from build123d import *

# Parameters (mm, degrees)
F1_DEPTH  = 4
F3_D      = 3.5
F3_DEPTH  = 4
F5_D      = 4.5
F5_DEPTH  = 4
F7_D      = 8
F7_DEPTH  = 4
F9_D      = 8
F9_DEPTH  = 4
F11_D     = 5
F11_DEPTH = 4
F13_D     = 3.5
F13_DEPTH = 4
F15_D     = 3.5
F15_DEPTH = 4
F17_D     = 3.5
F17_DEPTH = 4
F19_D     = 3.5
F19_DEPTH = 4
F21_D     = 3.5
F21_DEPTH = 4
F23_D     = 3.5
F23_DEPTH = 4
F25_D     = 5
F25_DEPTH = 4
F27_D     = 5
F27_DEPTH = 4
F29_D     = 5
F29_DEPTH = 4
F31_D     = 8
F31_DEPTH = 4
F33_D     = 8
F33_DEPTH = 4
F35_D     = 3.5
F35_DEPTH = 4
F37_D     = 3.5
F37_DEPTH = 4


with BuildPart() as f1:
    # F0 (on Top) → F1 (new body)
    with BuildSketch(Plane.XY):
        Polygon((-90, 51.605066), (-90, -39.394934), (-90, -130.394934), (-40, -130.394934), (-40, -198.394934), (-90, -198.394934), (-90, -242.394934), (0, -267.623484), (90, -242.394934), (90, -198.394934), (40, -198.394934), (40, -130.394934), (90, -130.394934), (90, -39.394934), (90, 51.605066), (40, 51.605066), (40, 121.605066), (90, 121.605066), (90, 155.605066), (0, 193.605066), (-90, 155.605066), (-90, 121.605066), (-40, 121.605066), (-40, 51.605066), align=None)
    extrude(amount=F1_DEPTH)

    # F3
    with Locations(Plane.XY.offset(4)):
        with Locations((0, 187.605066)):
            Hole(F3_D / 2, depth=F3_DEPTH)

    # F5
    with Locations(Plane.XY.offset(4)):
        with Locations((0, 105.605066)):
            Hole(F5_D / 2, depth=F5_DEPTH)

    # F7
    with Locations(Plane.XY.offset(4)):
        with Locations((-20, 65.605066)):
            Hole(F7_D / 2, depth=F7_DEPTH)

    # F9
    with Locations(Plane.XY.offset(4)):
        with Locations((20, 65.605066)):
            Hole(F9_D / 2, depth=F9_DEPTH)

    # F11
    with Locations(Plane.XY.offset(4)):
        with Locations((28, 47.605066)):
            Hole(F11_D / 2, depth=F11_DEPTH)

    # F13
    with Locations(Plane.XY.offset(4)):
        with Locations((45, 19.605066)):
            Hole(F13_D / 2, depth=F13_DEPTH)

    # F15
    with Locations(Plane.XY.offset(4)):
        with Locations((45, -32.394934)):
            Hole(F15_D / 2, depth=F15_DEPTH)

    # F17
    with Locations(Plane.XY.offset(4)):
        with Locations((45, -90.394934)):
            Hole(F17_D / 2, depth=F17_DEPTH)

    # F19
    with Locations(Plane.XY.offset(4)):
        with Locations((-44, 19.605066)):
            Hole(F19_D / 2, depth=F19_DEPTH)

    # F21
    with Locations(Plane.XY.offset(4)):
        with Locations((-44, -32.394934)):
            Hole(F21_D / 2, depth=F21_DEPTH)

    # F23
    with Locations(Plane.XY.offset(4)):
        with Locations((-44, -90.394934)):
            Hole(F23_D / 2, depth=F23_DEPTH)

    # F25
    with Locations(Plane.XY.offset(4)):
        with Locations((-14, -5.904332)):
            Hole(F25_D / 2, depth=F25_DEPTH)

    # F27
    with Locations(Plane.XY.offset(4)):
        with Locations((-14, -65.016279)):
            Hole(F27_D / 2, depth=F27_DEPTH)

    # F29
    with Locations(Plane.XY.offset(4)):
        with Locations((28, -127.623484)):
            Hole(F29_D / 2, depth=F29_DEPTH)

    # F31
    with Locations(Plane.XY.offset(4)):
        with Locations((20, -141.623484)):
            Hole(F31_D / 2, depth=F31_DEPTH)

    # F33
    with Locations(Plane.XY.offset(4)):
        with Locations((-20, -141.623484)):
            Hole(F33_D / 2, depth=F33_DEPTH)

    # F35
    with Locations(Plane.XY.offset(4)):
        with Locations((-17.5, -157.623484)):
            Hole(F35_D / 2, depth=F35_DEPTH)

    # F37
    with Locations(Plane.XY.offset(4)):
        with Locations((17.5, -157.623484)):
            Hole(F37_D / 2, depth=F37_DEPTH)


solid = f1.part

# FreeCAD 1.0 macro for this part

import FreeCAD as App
import Part
import Sketcher


def add_polygon(sketch, points):
    """Adds a closed chain of lines whose ends are joined by coincident constraints."""
    first, n = sketch.GeometryCount, len(points)
    for a, b in zip(points, points[1:] + points[:1]):
        sketch.addGeometry(Part.LineSegment(App.Vector(*a, 0), App.Vector(*b, 0)), False)
    for i in range(n):
        sketch.addConstraint(Sketcher.Constraint("Coincident", first + i, 2, first + (i + 1) % n, 1))

doc = App.newDocument("Part")
body = doc.addObject("PartDesign::Body", "Body")

# Sketch on XY plane
sketch1 = body.newObject("Sketcher::SketchObject", "Sketch")
sketch1.AttachmentSupport = (doc.getObject("XY_Plane"), [""])
sketch1.MapMode = "FlatFace"
add_polygon(sketch1, [(-90, 52), (-90, -130), (-40, -130), (-40, -198), (-90, -198), (-90, -242), (0, -268), (90, -242), (90, -198), (40, -198), (40, -130), (90, -130), (90, 52), (40, 52), (40, 122), (90, 122), (90, 156), (0, 194), (-90, 156), (-90, 122), (-40, 122), (-40, 52)])  # lines 0-21
sketch1.addConstraint(Sketcher.Constraint("Vertical", 0))
sketch1.addConstraint(Sketcher.Constraint("Horizontal", 1))
sketch1.addConstraint(Sketcher.Constraint("Vertical", 2))
sketch1.addConstraint(Sketcher.Constraint("Horizontal", 3))
sketch1.addConstraint(Sketcher.Constraint("Vertical", 4))
sketch1.addConstraint(Sketcher.Constraint("Vertical", 7))
sketch1.addConstraint(Sketcher.Constraint("Horizontal", 8))
sketch1.addConstraint(Sketcher.Constraint("Vertical", 9))
sketch1.addConstraint(Sketcher.Constraint("Horizontal", 10))
sketch1.addConstraint(Sketcher.Constraint("Vertical", 11))
sketch1.addConstraint(Sketcher.Constraint("Horizontal", 12))
sketch1.addConstraint(Sketcher.Constraint("Vertical", 13))
sketch1.addConstraint(Sketcher.Constraint("Horizontal", 14))
sketch1.addConstraint(Sketcher.Constraint("Vertical", 15))
sketch1.addConstraint(Sketcher.Constraint("Vertical", 18))
sketch1.addConstraint(Sketcher.Constraint("Horizontal", 19))
sketch1.addConstraint(Sketcher.Constraint("Vertical", 20))
sketch1.addConstraint(Sketcher.Constraint("Horizontal", 21))
sketch1.addConstraint(Sketcher.Constraint("Symmetric", 4, 2, 6, 2, -2))
sketch1.addConstraint(Sketcher.Constraint("Symmetric", 2, 2, 8, 2, -2))
sketch1.addConstraint(Sketcher.Constraint("Symmetric", 0, 2, 10, 2, -2))
sketch1.addConstraint(Sketcher.Constraint("Symmetric", 15, 2, 17, 2, -2))
sketch1.addConstraint(Sketcher.Constraint("Symmetric", 13, 2, 19, 2, -2))
sketch1.addConstraint(Sketcher.Constraint("PointOnObject", 5, 2, -2))
sketch1.addConstraint(Sketcher.Constraint("PointOnObject", 16, 2, -2))
sketch1.addConstraint(Sketcher.Constraint("Horizontal", 12, 2, 20, 2))
sketch1.addConstraint(Sketcher.Constraint("Vertical", 0, 2, 3, 2))
sketch1.addConstraint(Sketcher.Constraint("Vertical", 9, 2, 12, 2))
sketch1.addConstraint(Sketcher.Constraint("Vertical", 11, 2, 14, 2))
sketch1.addConstraint(Sketcher.Constraint("DistanceX", 1, 1, 1, 2, 50.0))
sketch1.addConstraint(Sketcher.Constraint("DistanceY", 0, 2, 0, 1, 182.0))
sketch1.addConstraint(Sketcher.Constraint("DistanceY", 2, 2, 2, 1, 68.0))
sketch1.addConstraint(Sketcher.Constraint("DistanceY", 4, 2, 4, 1, 44.0))
sketch1.addConstraint(Sketcher.Constraint("DistanceY", 13, 1, 13, 2, 70.0))
sketch1.addConstraint(Sketcher.Constraint("DistanceY", 15, 1, 15, 2, 34.0))
sketch1.addConstraint(Sketcher.Constraint("DistanceX", 0, 2, -1, 1, 90.0))
sketch1.addConstraint(Sketcher.Constraint("DistanceY", 13, 2, 16, 2, 72.0))
sketch1.addConstraint(Sketcher.Constraint("DistanceY", 5, 2, 2, 2, 69.22855))
sketch1.addConstraint(Sketcher.Constraint("DistanceY", 0, 2, -1, 1, 130.394934))
pad1 = body.newObject("PartDesign::Pad", "Pad")
pad1.Profile = sketch1
pad1.Length = 4

# Sketch on XY plane
sketch2 = body.newObject("Sketcher::SketchObject", "Sketch001")
sketch2.AttachmentSupport = (doc.getObject("XY_Plane"), [""])
sketch2.MapMode = "FlatFace"
sketch2.AttachmentOffset = App.Placement(App.Vector(0, 0, 4), App.Rotation())
sketch2.addGeometry(Part.Circle(App.Vector(0, 187.6, 0), App.Vector(0, 0, 1), 1.8), False)
sketch2.addConstraint(Sketcher.Constraint("PointOnObject", 0, 3, -2))
sketch2.addConstraint(Sketcher.Constraint("Diameter", 0, 3.5))
sketch2.addConstraint(Sketcher.Constraint("DistanceY", -1, 1, 0, 3, 187.605066))
doc.recompute()
hole = body.newObject("PartDesign::Hole", "Hole")
hole.Profile = sketch2
hole.ThreadType = "None"
hole.Diameter = 3.5
hole.DepthType = "Dimension"
hole.Depth = 4
hole.DrillPoint = "Flat"

# Sketch on XY plane
sketch3 = body.newObject("Sketcher::SketchObject", "Sketch002")
sketch3.AttachmentSupport = (doc.getObject("XY_Plane"), [""])
sketch3.MapMode = "FlatFace"
sketch3.AttachmentOffset = App.Placement(App.Vector(0, 0, 4), App.Rotation())
sketch3.addGeometry(Part.Circle(App.Vector(0, 105.6, 0), App.Vector(0, 0, 1), 2.2), False)
sketch3.addConstraint(Sketcher.Constraint("PointOnObject", 0, 3, -2))
sketch3.addConstraint(Sketcher.Constraint("Diameter", 0, 4.5))
sketch3.addConstraint(Sketcher.Constraint("DistanceY", -1, 1, 0, 3, 105.605066))
doc.recompute()
hole2 = body.newObject("PartDesign::Hole", "Hole001")
hole2.Profile = sketch3
hole2.ThreadType = "None"
hole2.Diameter = 4.5
hole2.DepthType = "Dimension"
hole2.Depth = 4
hole2.DrillPoint = "Flat"

# Sketch on XY plane
sketch4 = body.newObject("Sketcher::SketchObject", "Sketch003")
sketch4.AttachmentSupport = (doc.getObject("XY_Plane"), [""])
sketch4.MapMode = "FlatFace"
sketch4.AttachmentOffset = App.Placement(App.Vector(0, 0, 4), App.Rotation())
sketch4.addGeometry(Part.Circle(App.Vector(-20, 65.6, 0), App.Vector(0, 0, 1), 4), False)
sketch4.addConstraint(Sketcher.Constraint("Diameter", 0, 8.0))
sketch4.addConstraint(Sketcher.Constraint("DistanceX", 0, 3, -1, 1, 20.0))
sketch4.addConstraint(Sketcher.Constraint("DistanceY", -1, 1, 0, 3, 65.605066))
doc.recompute()
hole3 = body.newObject("PartDesign::Hole", "Hole002")
hole3.Profile = sketch4
hole3.ThreadType = "None"
hole3.Diameter = 8
hole3.DepthType = "Dimension"
hole3.Depth = 4
hole3.DrillPoint = "Flat"

# Sketch on XY plane
sketch5 = body.newObject("Sketcher::SketchObject", "Sketch004")
sketch5.AttachmentSupport = (doc.getObject("XY_Plane"), [""])
sketch5.MapMode = "FlatFace"
sketch5.AttachmentOffset = App.Placement(App.Vector(0, 0, 4), App.Rotation())
sketch5.addGeometry(Part.Circle(App.Vector(20, 65.6, 0), App.Vector(0, 0, 1), 4), False)
sketch5.addConstraint(Sketcher.Constraint("Diameter", 0, 8.0))
sketch5.addConstraint(Sketcher.Constraint("DistanceX", -1, 1, 0, 3, 20.0))
sketch5.addConstraint(Sketcher.Constraint("DistanceY", -1, 1, 0, 3, 65.605066))
doc.recompute()
hole4 = body.newObject("PartDesign::Hole", "Hole003")
hole4.Profile = sketch5
hole4.ThreadType = "None"
hole4.Diameter = 8
hole4.DepthType = "Dimension"
hole4.Depth = 4
hole4.DrillPoint = "Flat"

# Sketch on XY plane
sketch6 = body.newObject("Sketcher::SketchObject", "Sketch005")
sketch6.AttachmentSupport = (doc.getObject("XY_Plane"), [""])
sketch6.MapMode = "FlatFace"
sketch6.AttachmentOffset = App.Placement(App.Vector(0, 0, 4), App.Rotation())
sketch6.addGeometry(Part.Circle(App.Vector(28, 47.6, 0), App.Vector(0, 0, 1), 2.5), False)
sketch6.addConstraint(Sketcher.Constraint("Diameter", 0, 5.0))
sketch6.addConstraint(Sketcher.Constraint("DistanceX", -1, 1, 0, 3, 28.0))
sketch6.addConstraint(Sketcher.Constraint("DistanceY", -1, 1, 0, 3, 47.605066))
doc.recompute()
hole5 = body.newObject("PartDesign::Hole", "Hole004")
hole5.Profile = sketch6
hole5.ThreadType = "None"
hole5.Diameter = 5
hole5.DepthType = "Dimension"
hole5.Depth = 4
hole5.DrillPoint = "Flat"

# Sketch on XY plane
sketch7 = body.newObject("Sketcher::SketchObject", "Sketch006")
sketch7.AttachmentSupport = (doc.getObject("XY_Plane"), [""])
sketch7.MapMode = "FlatFace"
sketch7.AttachmentOffset = App.Placement(App.Vector(0, 0, 4), App.Rotation())
sketch7.addGeometry(Part.Circle(App.Vector(45, 19.6, 0), App.Vector(0, 0, 1), 1.8), False)
sketch7.addConstraint(Sketcher.Constraint("Diameter", 0, 3.5))
sketch7.addConstraint(Sketcher.Constraint("DistanceX", -1, 1, 0, 3, 45.0))
sketch7.addConstraint(Sketcher.Constraint("DistanceY", -1, 1, 0, 3, 19.605066))
doc.recompute()
hole6 = body.newObject("PartDesign::Hole", "Hole005")
hole6.Profile = sketch7
hole6.ThreadType = "None"
hole6.Diameter = 3.5
hole6.DepthType = "Dimension"
hole6.Depth = 4
hole6.DrillPoint = "Flat"

# Sketch on XY plane
sketch8 = body.newObject("Sketcher::SketchObject", "Sketch007")
sketch8.AttachmentSupport = (doc.getObject("XY_Plane"), [""])
sketch8.MapMode = "FlatFace"
sketch8.AttachmentOffset = App.Placement(App.Vector(0, 0, 4), App.Rotation())
sketch8.addGeometry(Part.Circle(App.Vector(45, -32.4, 0), App.Vector(0, 0, 1), 1.8), False)
sketch8.addConstraint(Sketcher.Constraint("Diameter", 0, 3.5))
sketch8.addConstraint(Sketcher.Constraint("DistanceX", -1, 1, 0, 3, 45.0))
sketch8.addConstraint(Sketcher.Constraint("DistanceY", 0, 3, -1, 1, 32.394934))
doc.recompute()
hole7 = body.newObject("PartDesign::Hole", "Hole006")
hole7.Profile = sketch8
hole7.ThreadType = "None"
hole7.Diameter = 3.5
hole7.DepthType = "Dimension"
hole7.Depth = 4
hole7.DrillPoint = "Flat"

# Sketch on XY plane
sketch9 = body.newObject("Sketcher::SketchObject", "Sketch008")
sketch9.AttachmentSupport = (doc.getObject("XY_Plane"), [""])
sketch9.MapMode = "FlatFace"
sketch9.AttachmentOffset = App.Placement(App.Vector(0, 0, 4), App.Rotation())
sketch9.addGeometry(Part.Circle(App.Vector(45, -90.4, 0), App.Vector(0, 0, 1), 1.8), False)
sketch9.addConstraint(Sketcher.Constraint("Diameter", 0, 3.5))
sketch9.addConstraint(Sketcher.Constraint("DistanceX", -1, 1, 0, 3, 45.0))
sketch9.addConstraint(Sketcher.Constraint("DistanceY", 0, 3, -1, 1, 90.394934))
doc.recompute()
hole8 = body.newObject("PartDesign::Hole", "Hole007")
hole8.Profile = sketch9
hole8.ThreadType = "None"
hole8.Diameter = 3.5
hole8.DepthType = "Dimension"
hole8.Depth = 4
hole8.DrillPoint = "Flat"

# Sketch on XY plane
sketch10 = body.newObject("Sketcher::SketchObject", "Sketch009")
sketch10.AttachmentSupport = (doc.getObject("XY_Plane"), [""])
sketch10.MapMode = "FlatFace"
sketch10.AttachmentOffset = App.Placement(App.Vector(0, 0, 4), App.Rotation())
sketch10.addGeometry(Part.Circle(App.Vector(-44, 19.6, 0), App.Vector(0, 0, 1), 1.8), False)
sketch10.addConstraint(Sketcher.Constraint("Diameter", 0, 3.5))
sketch10.addConstraint(Sketcher.Constraint("DistanceX", 0, 3, -1, 1, 44.0))
sketch10.addConstraint(Sketcher.Constraint("DistanceY", -1, 1, 0, 3, 19.605066))
doc.recompute()
hole9 = body.newObject("PartDesign::Hole", "Hole008")
hole9.Profile = sketch10
hole9.ThreadType = "None"
hole9.Diameter = 3.5
hole9.DepthType = "Dimension"
hole9.Depth = 4
hole9.DrillPoint = "Flat"

# Sketch on XY plane
sketch11 = body.newObject("Sketcher::SketchObject", "Sketch010")
sketch11.AttachmentSupport = (doc.getObject("XY_Plane"), [""])
sketch11.MapMode = "FlatFace"
sketch11.AttachmentOffset = App.Placement(App.Vector(0, 0, 4), App.Rotation())
sketch11.addGeometry(Part.Circle(App.Vector(-44, -32.4, 0), App.Vector(0, 0, 1), 1.8), False)
sketch11.addConstraint(Sketcher.Constraint("Diameter", 0, 3.5))
sketch11.addConstraint(Sketcher.Constraint("DistanceX", 0, 3, -1, 1, 44.0))
sketch11.addConstraint(Sketcher.Constraint("DistanceY", 0, 3, -1, 1, 32.394934))
doc.recompute()
hole10 = body.newObject("PartDesign::Hole", "Hole009")
hole10.Profile = sketch11
hole10.ThreadType = "None"
hole10.Diameter = 3.5
hole10.DepthType = "Dimension"
hole10.Depth = 4
hole10.DrillPoint = "Flat"

# Sketch on XY plane
sketch12 = body.newObject("Sketcher::SketchObject", "Sketch011")
sketch12.AttachmentSupport = (doc.getObject("XY_Plane"), [""])
sketch12.MapMode = "FlatFace"
sketch12.AttachmentOffset = App.Placement(App.Vector(0, 0, 4), App.Rotation())
sketch12.addGeometry(Part.Circle(App.Vector(-44, -90.4, 0), App.Vector(0, 0, 1), 1.8), False)
sketch12.addConstraint(Sketcher.Constraint("Diameter", 0, 3.5))
sketch12.addConstraint(Sketcher.Constraint("DistanceX", 0, 3, -1, 1, 44.0))
sketch12.addConstraint(Sketcher.Constraint("DistanceY", 0, 3, -1, 1, 90.394934))
doc.recompute()
hole11 = body.newObject("PartDesign::Hole", "Hole010")
hole11.Profile = sketch12
hole11.ThreadType = "None"
hole11.Diameter = 3.5
hole11.DepthType = "Dimension"
hole11.Depth = 4
hole11.DrillPoint = "Flat"

# Sketch on XY plane
sketch13 = body.newObject("Sketcher::SketchObject", "Sketch012")
sketch13.AttachmentSupport = (doc.getObject("XY_Plane"), [""])
sketch13.MapMode = "FlatFace"
sketch13.AttachmentOffset = App.Placement(App.Vector(0, 0, 4), App.Rotation())
sketch13.addGeometry(Part.Circle(App.Vector(-14, -5.9, 0), App.Vector(0, 0, 1), 2.5), False)
sketch13.addConstraint(Sketcher.Constraint("Diameter", 0, 5.0))
sketch13.addConstraint(Sketcher.Constraint("DistanceX", 0, 3, -1, 1, 14.0))
sketch13.addConstraint(Sketcher.Constraint("DistanceY", 0, 3, -1, 1, 5.904332))
doc.recompute()
hole12 = body.newObject("PartDesign::Hole", "Hole011")
hole12.Profile = sketch13
hole12.ThreadType = "None"
hole12.Diameter = 5
hole12.DepthType = "Dimension"
hole12.Depth = 4
hole12.DrillPoint = "Flat"

# Sketch on XY plane
sketch14 = body.newObject("Sketcher::SketchObject", "Sketch013")
sketch14.AttachmentSupport = (doc.getObject("XY_Plane"), [""])
sketch14.MapMode = "FlatFace"
sketch14.AttachmentOffset = App.Placement(App.Vector(0, 0, 4), App.Rotation())
sketch14.addGeometry(Part.Circle(App.Vector(-14, -65, 0), App.Vector(0, 0, 1), 2.5), False)
sketch14.addConstraint(Sketcher.Constraint("Diameter", 0, 5.0))
sketch14.addConstraint(Sketcher.Constraint("DistanceX", 0, 3, -1, 1, 14.0))
sketch14.addConstraint(Sketcher.Constraint("DistanceY", 0, 3, -1, 1, 65.016279))
doc.recompute()
hole13 = body.newObject("PartDesign::Hole", "Hole012")
hole13.Profile = sketch14
hole13.ThreadType = "None"
hole13.Diameter = 5
hole13.DepthType = "Dimension"
hole13.Depth = 4
hole13.DrillPoint = "Flat"

# Sketch on XY plane
sketch15 = body.newObject("Sketcher::SketchObject", "Sketch014")
sketch15.AttachmentSupport = (doc.getObject("XY_Plane"), [""])
sketch15.MapMode = "FlatFace"
sketch15.AttachmentOffset = App.Placement(App.Vector(0, 0, 4), App.Rotation())
sketch15.addGeometry(Part.Circle(App.Vector(28, -127.6, 0), App.Vector(0, 0, 1), 2.5), False)
sketch15.addConstraint(Sketcher.Constraint("Diameter", 0, 5.0))
sketch15.addConstraint(Sketcher.Constraint("DistanceX", -1, 1, 0, 3, 28.0))
sketch15.addConstraint(Sketcher.Constraint("DistanceY", 0, 3, -1, 1, 127.623484))
doc.recompute()
hole14 = body.newObject("PartDesign::Hole", "Hole013")
hole14.Profile = sketch15
hole14.ThreadType = "None"
hole14.Diameter = 5
hole14.DepthType = "Dimension"
hole14.Depth = 4
hole14.DrillPoint = "Flat"

# Sketch on XY plane
sketch16 = body.newObject("Sketcher::SketchObject", "Sketch015")
sketch16.AttachmentSupport = (doc.getObject("XY_Plane"), [""])
sketch16.MapMode = "FlatFace"
sketch16.AttachmentOffset = App.Placement(App.Vector(0, 0, 4), App.Rotation())
sketch16.addGeometry(Part.Circle(App.Vector(20, -141.6, 0), App.Vector(0, 0, 1), 4), False)
sketch16.addConstraint(Sketcher.Constraint("Diameter", 0, 8.0))
sketch16.addConstraint(Sketcher.Constraint("DistanceX", -1, 1, 0, 3, 20.0))
sketch16.addConstraint(Sketcher.Constraint("DistanceY", 0, 3, -1, 1, 141.623484))
doc.recompute()
hole15 = body.newObject("PartDesign::Hole", "Hole014")
hole15.Profile = sketch16
hole15.ThreadType = "None"
hole15.Diameter = 8
hole15.DepthType = "Dimension"
hole15.Depth = 4
hole15.DrillPoint = "Flat"

# Sketch on XY plane
sketch17 = body.newObject("Sketcher::SketchObject", "Sketch016")
sketch17.AttachmentSupport = (doc.getObject("XY_Plane"), [""])
sketch17.MapMode = "FlatFace"
sketch17.AttachmentOffset = App.Placement(App.Vector(0, 0, 4), App.Rotation())
sketch17.addGeometry(Part.Circle(App.Vector(-20, -141.6, 0), App.Vector(0, 0, 1), 4), False)
sketch17.addConstraint(Sketcher.Constraint("Diameter", 0, 8.0))
sketch17.addConstraint(Sketcher.Constraint("DistanceX", 0, 3, -1, 1, 20.0))
sketch17.addConstraint(Sketcher.Constraint("DistanceY", 0, 3, -1, 1, 141.623484))
doc.recompute()
hole16 = body.newObject("PartDesign::Hole", "Hole015")
hole16.Profile = sketch17
hole16.ThreadType = "None"
hole16.Diameter = 8
hole16.DepthType = "Dimension"
hole16.Depth = 4
hole16.DrillPoint = "Flat"

# Sketch on XY plane
sketch18 = body.newObject("Sketcher::SketchObject", "Sketch017")
sketch18.AttachmentSupport = (doc.getObject("XY_Plane"), [""])
sketch18.MapMode = "FlatFace"
sketch18.AttachmentOffset = App.Placement(App.Vector(0, 0, 4), App.Rotation())
sketch18.addGeometry(Part.Circle(App.Vector(-17.5, -157.6, 0), App.Vector(0, 0, 1), 1.8), False)
sketch18.addConstraint(Sketcher.Constraint("Diameter", 0, 3.5))
sketch18.addConstraint(Sketcher.Constraint("DistanceX", 0, 3, -1, 1, 17.5))
sketch18.addConstraint(Sketcher.Constraint("DistanceY", 0, 3, -1, 1, 157.623484))
doc.recompute()
hole17 = body.newObject("PartDesign::Hole", "Hole016")
hole17.Profile = sketch18
hole17.ThreadType = "None"
hole17.Diameter = 3.5
hole17.DepthType = "Dimension"
hole17.Depth = 4
hole17.DrillPoint = "Flat"

# Sketch on XY plane
sketch19 = body.newObject("Sketcher::SketchObject", "Sketch018")
sketch19.AttachmentSupport = (doc.getObject("XY_Plane"), [""])
sketch19.MapMode = "FlatFace"
sketch19.AttachmentOffset = App.Placement(App.Vector(0, 0, 4), App.Rotation())
sketch19.addGeometry(Part.Circle(App.Vector(17.5, -157.6, 0), App.Vector(0, 0, 1), 1.8), False)
sketch19.addConstraint(Sketcher.Constraint("Diameter", 0, 3.5))
sketch19.addConstraint(Sketcher.Constraint("DistanceX", -1, 1, 0, 3, 17.5))
sketch19.addConstraint(Sketcher.Constraint("DistanceY", 0, 3, -1, 1, 157.623484))
doc.recompute()
hole18 = body.newObject("PartDesign::Hole", "Hole017")
hole18.Profile = sketch19
hole18.ThreadType = "None"
hole18.Diameter = 3.5
hole18.DepthType = "Dimension"
hole18.Depth = 4
hole18.DrillPoint = "Flat"

doc.recompute()
